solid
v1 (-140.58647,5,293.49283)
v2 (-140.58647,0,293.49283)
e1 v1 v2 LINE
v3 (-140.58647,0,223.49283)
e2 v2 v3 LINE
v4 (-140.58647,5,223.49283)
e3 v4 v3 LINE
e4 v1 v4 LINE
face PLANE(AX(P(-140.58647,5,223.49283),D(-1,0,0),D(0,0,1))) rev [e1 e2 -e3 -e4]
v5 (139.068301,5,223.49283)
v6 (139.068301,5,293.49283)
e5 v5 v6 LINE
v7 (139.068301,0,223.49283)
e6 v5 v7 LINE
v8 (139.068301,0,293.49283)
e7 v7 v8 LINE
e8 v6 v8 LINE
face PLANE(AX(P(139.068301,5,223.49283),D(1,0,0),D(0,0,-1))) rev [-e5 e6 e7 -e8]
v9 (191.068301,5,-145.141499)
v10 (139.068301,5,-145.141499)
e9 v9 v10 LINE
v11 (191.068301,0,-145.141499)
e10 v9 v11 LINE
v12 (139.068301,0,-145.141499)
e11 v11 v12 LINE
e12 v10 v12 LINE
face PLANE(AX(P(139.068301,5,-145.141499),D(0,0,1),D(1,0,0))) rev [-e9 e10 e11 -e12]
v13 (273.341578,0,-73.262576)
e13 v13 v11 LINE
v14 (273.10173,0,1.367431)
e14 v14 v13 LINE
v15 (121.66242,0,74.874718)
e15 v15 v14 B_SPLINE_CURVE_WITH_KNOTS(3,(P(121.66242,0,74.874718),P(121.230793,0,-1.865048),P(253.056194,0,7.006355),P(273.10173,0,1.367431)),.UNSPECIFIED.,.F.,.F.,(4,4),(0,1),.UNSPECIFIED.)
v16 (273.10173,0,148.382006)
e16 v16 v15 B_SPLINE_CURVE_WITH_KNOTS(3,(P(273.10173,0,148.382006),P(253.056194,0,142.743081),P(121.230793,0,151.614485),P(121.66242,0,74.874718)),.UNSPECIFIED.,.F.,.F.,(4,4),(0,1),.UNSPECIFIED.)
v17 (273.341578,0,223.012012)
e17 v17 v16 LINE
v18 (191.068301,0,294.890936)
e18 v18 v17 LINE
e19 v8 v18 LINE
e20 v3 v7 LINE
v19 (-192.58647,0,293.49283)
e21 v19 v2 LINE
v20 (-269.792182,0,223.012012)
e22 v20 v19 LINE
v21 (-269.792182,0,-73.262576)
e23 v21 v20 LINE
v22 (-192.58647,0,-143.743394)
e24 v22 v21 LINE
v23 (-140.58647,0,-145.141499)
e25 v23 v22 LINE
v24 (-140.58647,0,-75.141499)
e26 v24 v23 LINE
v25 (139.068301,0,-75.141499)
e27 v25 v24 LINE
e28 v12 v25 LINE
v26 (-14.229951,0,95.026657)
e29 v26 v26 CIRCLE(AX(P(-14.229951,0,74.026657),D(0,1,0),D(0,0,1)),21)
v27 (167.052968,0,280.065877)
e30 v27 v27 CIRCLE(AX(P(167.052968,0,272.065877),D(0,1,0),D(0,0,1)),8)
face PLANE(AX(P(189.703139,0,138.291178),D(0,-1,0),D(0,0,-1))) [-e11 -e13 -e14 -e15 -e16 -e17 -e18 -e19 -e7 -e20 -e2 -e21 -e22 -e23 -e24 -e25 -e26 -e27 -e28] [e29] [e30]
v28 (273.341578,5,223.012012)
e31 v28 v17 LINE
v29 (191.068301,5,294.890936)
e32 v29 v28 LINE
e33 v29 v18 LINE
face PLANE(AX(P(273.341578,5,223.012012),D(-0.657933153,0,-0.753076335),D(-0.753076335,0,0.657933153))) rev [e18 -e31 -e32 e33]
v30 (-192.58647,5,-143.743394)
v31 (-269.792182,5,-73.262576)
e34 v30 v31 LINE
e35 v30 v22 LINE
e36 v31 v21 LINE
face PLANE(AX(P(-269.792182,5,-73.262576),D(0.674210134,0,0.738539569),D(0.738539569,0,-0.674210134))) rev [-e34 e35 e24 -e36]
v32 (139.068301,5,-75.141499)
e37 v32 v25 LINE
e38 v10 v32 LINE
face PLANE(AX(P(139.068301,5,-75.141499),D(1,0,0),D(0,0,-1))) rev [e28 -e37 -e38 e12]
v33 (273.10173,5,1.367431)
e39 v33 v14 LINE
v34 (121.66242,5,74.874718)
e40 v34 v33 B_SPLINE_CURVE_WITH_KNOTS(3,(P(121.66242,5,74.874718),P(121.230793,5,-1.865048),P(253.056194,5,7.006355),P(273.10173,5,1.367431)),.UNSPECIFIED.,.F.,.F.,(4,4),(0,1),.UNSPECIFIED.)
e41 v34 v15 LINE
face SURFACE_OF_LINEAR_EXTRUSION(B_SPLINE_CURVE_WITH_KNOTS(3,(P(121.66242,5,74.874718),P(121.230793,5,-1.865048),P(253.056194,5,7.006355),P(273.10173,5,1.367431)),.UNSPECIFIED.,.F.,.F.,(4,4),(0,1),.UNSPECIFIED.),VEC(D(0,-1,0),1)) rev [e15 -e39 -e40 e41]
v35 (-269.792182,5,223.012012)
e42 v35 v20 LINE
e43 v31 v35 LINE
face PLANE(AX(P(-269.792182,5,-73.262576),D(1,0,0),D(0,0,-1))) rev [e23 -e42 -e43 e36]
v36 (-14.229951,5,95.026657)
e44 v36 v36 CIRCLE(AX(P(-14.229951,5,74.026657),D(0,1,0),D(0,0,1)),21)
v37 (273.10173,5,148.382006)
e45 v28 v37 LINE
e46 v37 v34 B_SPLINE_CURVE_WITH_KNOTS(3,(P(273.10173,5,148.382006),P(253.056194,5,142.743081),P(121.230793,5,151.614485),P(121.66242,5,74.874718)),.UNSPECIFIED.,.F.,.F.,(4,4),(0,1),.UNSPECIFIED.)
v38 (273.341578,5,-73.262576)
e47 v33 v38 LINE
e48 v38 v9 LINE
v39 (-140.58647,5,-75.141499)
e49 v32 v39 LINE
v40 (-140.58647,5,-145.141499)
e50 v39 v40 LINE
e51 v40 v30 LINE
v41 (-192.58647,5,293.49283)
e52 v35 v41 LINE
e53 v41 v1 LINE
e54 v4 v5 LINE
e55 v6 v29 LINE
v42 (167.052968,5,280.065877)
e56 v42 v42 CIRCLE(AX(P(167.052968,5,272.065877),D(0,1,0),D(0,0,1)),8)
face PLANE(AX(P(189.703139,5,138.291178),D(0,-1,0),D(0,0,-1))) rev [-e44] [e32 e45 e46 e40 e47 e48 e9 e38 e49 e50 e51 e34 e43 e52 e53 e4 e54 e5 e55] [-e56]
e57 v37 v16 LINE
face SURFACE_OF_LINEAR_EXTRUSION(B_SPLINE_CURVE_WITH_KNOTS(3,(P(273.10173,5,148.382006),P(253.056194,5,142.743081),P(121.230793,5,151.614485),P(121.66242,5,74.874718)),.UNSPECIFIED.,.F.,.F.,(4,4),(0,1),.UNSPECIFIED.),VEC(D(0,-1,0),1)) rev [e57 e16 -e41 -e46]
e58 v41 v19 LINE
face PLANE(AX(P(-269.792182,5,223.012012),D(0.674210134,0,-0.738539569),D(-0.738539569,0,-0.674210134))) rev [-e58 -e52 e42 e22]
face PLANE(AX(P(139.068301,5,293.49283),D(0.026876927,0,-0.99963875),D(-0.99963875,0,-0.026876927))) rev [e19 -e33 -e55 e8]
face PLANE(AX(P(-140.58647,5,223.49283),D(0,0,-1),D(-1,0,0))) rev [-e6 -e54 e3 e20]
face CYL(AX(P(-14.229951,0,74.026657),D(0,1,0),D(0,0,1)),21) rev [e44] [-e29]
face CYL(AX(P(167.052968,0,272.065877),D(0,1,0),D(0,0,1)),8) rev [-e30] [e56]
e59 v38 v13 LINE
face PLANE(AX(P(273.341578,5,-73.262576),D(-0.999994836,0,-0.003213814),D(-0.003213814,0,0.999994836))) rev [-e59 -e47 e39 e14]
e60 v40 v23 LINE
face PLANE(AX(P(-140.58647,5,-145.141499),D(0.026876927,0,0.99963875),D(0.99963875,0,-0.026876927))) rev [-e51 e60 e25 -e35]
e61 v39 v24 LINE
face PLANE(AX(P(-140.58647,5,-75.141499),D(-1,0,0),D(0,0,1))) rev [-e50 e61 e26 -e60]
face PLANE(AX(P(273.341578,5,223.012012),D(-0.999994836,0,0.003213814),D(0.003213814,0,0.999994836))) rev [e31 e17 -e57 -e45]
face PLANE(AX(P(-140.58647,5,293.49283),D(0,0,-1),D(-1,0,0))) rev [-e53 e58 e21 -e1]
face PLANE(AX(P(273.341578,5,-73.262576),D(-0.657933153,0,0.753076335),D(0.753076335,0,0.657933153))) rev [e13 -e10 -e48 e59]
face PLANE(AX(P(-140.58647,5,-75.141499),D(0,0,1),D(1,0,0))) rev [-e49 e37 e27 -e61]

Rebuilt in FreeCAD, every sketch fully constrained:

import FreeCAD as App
import Part
import Sketcher

V = App.Vector
Q = App.Units.Quantity

doc = App.newDocument("Part")
body = doc.addObject("PartDesign::Body", "Body")

# Sketch on XZ plane
sketch1 = body.newObject("Sketcher::SketchObject", "Sketch")
sketch1.AttachmentSupport = (doc.getObject("XZ_Plane"), [""])
sketch1.MapMode = "FlatFace"
sketch1.addGeometry(Part.LineSegment(V(-269.792182, -73.262576, 0), V(-269.792182, 223.012012, 0)), False)
sketch1.addGeometry(Part.LineSegment(V(-269.792182, 223.012012, 0), V(-192.58647, 293.49283, 0)), False)
sketch1.addGeometry(Part.LineSegment(V(-192.58647, 293.49283, 0), V(-140.58647, 293.49283, 0)), False)
sketch1.addGeometry(Part.LineSegment(V(-140.58647, 293.49283, 0), V(-140.58647, 223.49283, 0)), False)
sketch1.addGeometry(Part.LineSegment(V(-140.58647, 223.49283, 0), V(139.068301, 223.49283, 0)), False)
sketch1.addGeometry(Part.LineSegment(V(139.068301, 223.49283, 0), V(139.068301, 293.49283, 0)), False)
sketch1.addGeometry(Part.LineSegment(V(139.068301, 293.49283, 0), V(191.068301, 294.890936, 0)), False)
sketch1.addGeometry(Part.LineSegment(V(191.068301, 294.890936, 0), V(273.341578, 223.012012, 0)), False)
sketch1.addGeometry(Part.LineSegment(V(273.341578, 223.012012, 0), V(273.10173, 148.382006, 0)), False)
sketch1.addGeometry(Part.BSplineCurve([V(273.10173, 148.382006, 0), V(253.056194, 142.743081, 0), V(121.230793, 151.614485, 0), V(121.66242, 74.874718, 0)], [4, 4], [0, 1], False, 3, [1, 1, 1, 1], False), False)
sketch1.addGeometry(Part.BSplineCurve([V(273.10173, 1.367431, 0), V(253.056194, 7.006355, 0), V(121.230793, -1.865048, 0), V(121.66242, 74.874718, 0)], [4, 4], [0, 1], False, 3, [1, 1, 1, 1], False), False)
sketch1.addGeometry(Part.LineSegment(V(273.10173, 1.367431, 0), V(273.341578, -73.262576, 0)), False)
sketch1.addGeometry(Part.LineSegment(V(273.341578, -73.262576, 0), V(191.068301, -145.141499, 0)), False)
sketch1.addGeometry(Part.LineSegment(V(191.068301, -145.141499, 0), V(139.068301, -145.141499, 0)), False)
sketch1.addGeometry(Part.LineSegment(V(139.068301, -145.141499, 0), V(139.068301, -75.141499, 0)), False)
sketch1.addGeometry(Part.LineSegment(V(139.068301, -75.141499, 0), V(-140.58647, -75.141499, 0)), False)
sketch1.addGeometry(Part.LineSegment(V(-140.58647, -75.141499, 0), V(-140.58647, -145.141499, 0)), False)
sketch1.addGeometry(Part.LineSegment(V(-140.58647, -145.141499, 0), V(-192.58647, -143.743394, 0)), False)
sketch1.addGeometry(Part.LineSegment(V(-192.58647, -143.743394, 0), V(-269.792182, -73.262576, 0)), False)
sketch1.addConstraint(Sketcher.Constraint("Block", 9))
sketch1.addConstraint(Sketcher.Constraint("Block", 10))
sketch1.addConstraint(Sketcher.Constraint("Coincident", 0, 2, 1, 1))
sketch1.addConstraint(Sketcher.Constraint("Coincident", 1, 2, 2, 1))
sketch1.addConstraint(Sketcher.Constraint("Coincident", 2, 2, 3, 1))
sketch1.addConstraint(Sketcher.Constraint("Coincident", 3, 2, 4, 1))
sketch1.addConstraint(Sketcher.Constraint("Coincident", 4, 2, 5, 1))
sketch1.addConstraint(Sketcher.Constraint("Coincident", 5, 2, 6, 1))
sketch1.addConstraint(Sketcher.Constraint("Coincident", 6, 2, 7, 1))
sketch1.addConstraint(Sketcher.Constraint("Coincident", 7, 2, 8, 1))
sketch1.addConstraint(Sketcher.Constraint("Coincident", 8, 2, 9, 1))
sketch1.addConstraint(Sketcher.Constraint("Coincident", 10, 1, 11, 1))
sketch1.addConstraint(Sketcher.Constraint("Coincident", 11, 2, 12, 1))
sketch1.addConstraint(Sketcher.Constraint("Coincident", 12, 2, 13, 1))
sketch1.addConstraint(Sketcher.Constraint("Coincident", 13, 2, 14, 1))
sketch1.addConstraint(Sketcher.Constraint("Coincident", 14, 2, 15, 1))
sketch1.addConstraint(Sketcher.Constraint("Coincident", 15, 2, 16, 1))
sketch1.addConstraint(Sketcher.Constraint("Coincident", 16, 2, 17, 1))
sketch1.addConstraint(Sketcher.Constraint("Coincident", 17, 2, 18, 1))
sketch1.addConstraint(Sketcher.Constraint("Coincident", 18, 2, 0, 1))
sketch1.addConstraint(Sketcher.Constraint("Vertical", 0))
sketch1.addConstraint(Sketcher.Constraint("Horizontal", 2))
sketch1.addConstraint(Sketcher.Constraint("Vertical", 3))
sketch1.addConstraint(Sketcher.Constraint("Horizontal", 4))
sketch1.addConstraint(Sketcher.Constraint("Vertical", 5))
sketch1.addConstraint(Sketcher.Constraint("Horizontal", 13))
sketch1.addConstraint(Sketcher.Constraint("Vertical", 14))
sketch1.addConstraint(Sketcher.Constraint("Horizontal", 15))
sketch1.addConstraint(Sketcher.Constraint("Vertical", 16))
sketch1.addConstraint(Sketcher.Constraint("Horizontal", 2, 2, 5, 2))
sketch1.addConstraint(Sketcher.Constraint("Horizontal", 0, 2, 7, 2))
sketch1.addConstraint(Sketcher.Constraint("Horizontal", 13, 2, 16, 2))
sketch1.addConstraint(Sketcher.Constraint("Horizontal", 11, 2, 18, 2))
sketch1.addConstraint(Sketcher.Constraint("Vertical", 7, 2, 11, 2))
sketch1.addConstraint(Sketcher.Constraint("Vertical", 6, 2, 12, 2))
sketch1.addConstraint(Sketcher.Constraint("Vertical", 5, 2, 13, 2))
sketch1.addConstraint(Sketcher.Constraint("Vertical", 3, 2, 15, 2))
sketch1.addConstraint(Sketcher.Constraint("Vertical", 1, 2, 17, 2))
sketch1.addConstraint(Sketcher.Constraint("Equal", 2, 13))
sketch1.addConstraint(Sketcher.Constraint("Equal", 5, 14))
sketch1.addConstraint(Sketcher.Constraint("Equal", 8, 11))
sketch1.addConstraint(Sketcher.Constraint("Equal", 7, 12))
sketch1.addConstraint(Sketcher.Constraint("Equal", 6, 17))
sketch1.addConstraint(Sketcher.Constraint("DistanceX", 2, 1, 2, 2, Q("52 mm")))
sketch1.addConstraint(Sketcher.Constraint("DistanceY", 3, 2, 3, 1, Q("70 mm")))
sketch1.addConstraint(Sketcher.Constraint("DistanceX", 4, 1, 4, 2, Q("279.654771 mm")))
sketch1.addConstraint(Sketcher.Constraint("DistanceX", -1, 1, 4, 2, Q("139.068301 mm")))
sketch1.addConstraint(Sketcher.Constraint("DistanceY", 12, 2, -1, 1, Q("145.141499 mm")))
sketch1.addConstraint(Sketcher.Constraint("Distance", 6, Q("52.018792 mm")))
sketch1.addConstraint(Sketcher.Constraint("Distance", 8, Q("74.630392 mm")))
sketch1.addConstraint(Sketcher.Constraint("DistanceY", 0, 1, 0, 2, Q("296.274588 mm")))
sketch1.addConstraint(Sketcher.Constraint("DistanceX", 0, 2, -1, 1, Q("269.792182 mm")))
pad1 = body.newObject("PartDesign::Pad", "Pad")
pad1.Profile = sketch1
pad1.Length = 5
pad1.Reversed = True

# Sketch on XZ plane
sketch2 = body.newObject("Sketcher::SketchObject", "Sketch001")
sketch2.AttachmentSupport = (doc.getObject("XZ_Plane"), [""])
sketch2.MapMode = "FlatFace"
sketch2.AttachmentOffset = App.Placement(V(0, 0, -5), App.Rotation())
sketch2.addGeometry(Part.Circle(V(-14, 74, 0), V(0, 0, 1), 21), False)
sketch2.addConstraint(Sketcher.Constraint("Diameter", 0, Q("42 mm")))
sketch2.addConstraint(Sketcher.Constraint("DistanceX", 0, 3, -1, 1, Q("14.229951 mm")))
sketch2.addConstraint(Sketcher.Constraint("DistanceY", -1, 1, 0, 3, Q("74.026657 mm")))
pocket1 = body.newObject("PartDesign::Pocket", "Pocket")
pocket1.Profile = sketch2
pocket1.Type = "ThroughAll"
pocket1.Reversed = True

# Sketch on XZ plane
sketch3 = body.newObject("Sketcher::SketchObject", "Sketch002")
sketch3.AttachmentSupport = (doc.getObject("XZ_Plane"), [""])
sketch3.MapMode = "FlatFace"
sketch3.AttachmentOffset = App.Placement(V(0, 0, -5), App.Rotation())
sketch3.addGeometry(Part.Circle(V(167, 272, 0), V(0, 0, 1), 8), False)
sketch3.addConstraint(Sketcher.Constraint("Diameter", 0, Q("16 mm")))
sketch3.addConstraint(Sketcher.Constraint("DistanceX", -1, 1, 0, 3, Q("167.052968 mm")))
sketch3.addConstraint(Sketcher.Constraint("DistanceY", -1, 1, 0, 3, Q("272.065877 mm")))
pocket2 = body.newObject("PartDesign::Pocket", "Pocket001")
pocket2.Profile = sketch3
pocket2.Type = "ThroughAll"
pocket2.Reversed = True

doc.recompute()
